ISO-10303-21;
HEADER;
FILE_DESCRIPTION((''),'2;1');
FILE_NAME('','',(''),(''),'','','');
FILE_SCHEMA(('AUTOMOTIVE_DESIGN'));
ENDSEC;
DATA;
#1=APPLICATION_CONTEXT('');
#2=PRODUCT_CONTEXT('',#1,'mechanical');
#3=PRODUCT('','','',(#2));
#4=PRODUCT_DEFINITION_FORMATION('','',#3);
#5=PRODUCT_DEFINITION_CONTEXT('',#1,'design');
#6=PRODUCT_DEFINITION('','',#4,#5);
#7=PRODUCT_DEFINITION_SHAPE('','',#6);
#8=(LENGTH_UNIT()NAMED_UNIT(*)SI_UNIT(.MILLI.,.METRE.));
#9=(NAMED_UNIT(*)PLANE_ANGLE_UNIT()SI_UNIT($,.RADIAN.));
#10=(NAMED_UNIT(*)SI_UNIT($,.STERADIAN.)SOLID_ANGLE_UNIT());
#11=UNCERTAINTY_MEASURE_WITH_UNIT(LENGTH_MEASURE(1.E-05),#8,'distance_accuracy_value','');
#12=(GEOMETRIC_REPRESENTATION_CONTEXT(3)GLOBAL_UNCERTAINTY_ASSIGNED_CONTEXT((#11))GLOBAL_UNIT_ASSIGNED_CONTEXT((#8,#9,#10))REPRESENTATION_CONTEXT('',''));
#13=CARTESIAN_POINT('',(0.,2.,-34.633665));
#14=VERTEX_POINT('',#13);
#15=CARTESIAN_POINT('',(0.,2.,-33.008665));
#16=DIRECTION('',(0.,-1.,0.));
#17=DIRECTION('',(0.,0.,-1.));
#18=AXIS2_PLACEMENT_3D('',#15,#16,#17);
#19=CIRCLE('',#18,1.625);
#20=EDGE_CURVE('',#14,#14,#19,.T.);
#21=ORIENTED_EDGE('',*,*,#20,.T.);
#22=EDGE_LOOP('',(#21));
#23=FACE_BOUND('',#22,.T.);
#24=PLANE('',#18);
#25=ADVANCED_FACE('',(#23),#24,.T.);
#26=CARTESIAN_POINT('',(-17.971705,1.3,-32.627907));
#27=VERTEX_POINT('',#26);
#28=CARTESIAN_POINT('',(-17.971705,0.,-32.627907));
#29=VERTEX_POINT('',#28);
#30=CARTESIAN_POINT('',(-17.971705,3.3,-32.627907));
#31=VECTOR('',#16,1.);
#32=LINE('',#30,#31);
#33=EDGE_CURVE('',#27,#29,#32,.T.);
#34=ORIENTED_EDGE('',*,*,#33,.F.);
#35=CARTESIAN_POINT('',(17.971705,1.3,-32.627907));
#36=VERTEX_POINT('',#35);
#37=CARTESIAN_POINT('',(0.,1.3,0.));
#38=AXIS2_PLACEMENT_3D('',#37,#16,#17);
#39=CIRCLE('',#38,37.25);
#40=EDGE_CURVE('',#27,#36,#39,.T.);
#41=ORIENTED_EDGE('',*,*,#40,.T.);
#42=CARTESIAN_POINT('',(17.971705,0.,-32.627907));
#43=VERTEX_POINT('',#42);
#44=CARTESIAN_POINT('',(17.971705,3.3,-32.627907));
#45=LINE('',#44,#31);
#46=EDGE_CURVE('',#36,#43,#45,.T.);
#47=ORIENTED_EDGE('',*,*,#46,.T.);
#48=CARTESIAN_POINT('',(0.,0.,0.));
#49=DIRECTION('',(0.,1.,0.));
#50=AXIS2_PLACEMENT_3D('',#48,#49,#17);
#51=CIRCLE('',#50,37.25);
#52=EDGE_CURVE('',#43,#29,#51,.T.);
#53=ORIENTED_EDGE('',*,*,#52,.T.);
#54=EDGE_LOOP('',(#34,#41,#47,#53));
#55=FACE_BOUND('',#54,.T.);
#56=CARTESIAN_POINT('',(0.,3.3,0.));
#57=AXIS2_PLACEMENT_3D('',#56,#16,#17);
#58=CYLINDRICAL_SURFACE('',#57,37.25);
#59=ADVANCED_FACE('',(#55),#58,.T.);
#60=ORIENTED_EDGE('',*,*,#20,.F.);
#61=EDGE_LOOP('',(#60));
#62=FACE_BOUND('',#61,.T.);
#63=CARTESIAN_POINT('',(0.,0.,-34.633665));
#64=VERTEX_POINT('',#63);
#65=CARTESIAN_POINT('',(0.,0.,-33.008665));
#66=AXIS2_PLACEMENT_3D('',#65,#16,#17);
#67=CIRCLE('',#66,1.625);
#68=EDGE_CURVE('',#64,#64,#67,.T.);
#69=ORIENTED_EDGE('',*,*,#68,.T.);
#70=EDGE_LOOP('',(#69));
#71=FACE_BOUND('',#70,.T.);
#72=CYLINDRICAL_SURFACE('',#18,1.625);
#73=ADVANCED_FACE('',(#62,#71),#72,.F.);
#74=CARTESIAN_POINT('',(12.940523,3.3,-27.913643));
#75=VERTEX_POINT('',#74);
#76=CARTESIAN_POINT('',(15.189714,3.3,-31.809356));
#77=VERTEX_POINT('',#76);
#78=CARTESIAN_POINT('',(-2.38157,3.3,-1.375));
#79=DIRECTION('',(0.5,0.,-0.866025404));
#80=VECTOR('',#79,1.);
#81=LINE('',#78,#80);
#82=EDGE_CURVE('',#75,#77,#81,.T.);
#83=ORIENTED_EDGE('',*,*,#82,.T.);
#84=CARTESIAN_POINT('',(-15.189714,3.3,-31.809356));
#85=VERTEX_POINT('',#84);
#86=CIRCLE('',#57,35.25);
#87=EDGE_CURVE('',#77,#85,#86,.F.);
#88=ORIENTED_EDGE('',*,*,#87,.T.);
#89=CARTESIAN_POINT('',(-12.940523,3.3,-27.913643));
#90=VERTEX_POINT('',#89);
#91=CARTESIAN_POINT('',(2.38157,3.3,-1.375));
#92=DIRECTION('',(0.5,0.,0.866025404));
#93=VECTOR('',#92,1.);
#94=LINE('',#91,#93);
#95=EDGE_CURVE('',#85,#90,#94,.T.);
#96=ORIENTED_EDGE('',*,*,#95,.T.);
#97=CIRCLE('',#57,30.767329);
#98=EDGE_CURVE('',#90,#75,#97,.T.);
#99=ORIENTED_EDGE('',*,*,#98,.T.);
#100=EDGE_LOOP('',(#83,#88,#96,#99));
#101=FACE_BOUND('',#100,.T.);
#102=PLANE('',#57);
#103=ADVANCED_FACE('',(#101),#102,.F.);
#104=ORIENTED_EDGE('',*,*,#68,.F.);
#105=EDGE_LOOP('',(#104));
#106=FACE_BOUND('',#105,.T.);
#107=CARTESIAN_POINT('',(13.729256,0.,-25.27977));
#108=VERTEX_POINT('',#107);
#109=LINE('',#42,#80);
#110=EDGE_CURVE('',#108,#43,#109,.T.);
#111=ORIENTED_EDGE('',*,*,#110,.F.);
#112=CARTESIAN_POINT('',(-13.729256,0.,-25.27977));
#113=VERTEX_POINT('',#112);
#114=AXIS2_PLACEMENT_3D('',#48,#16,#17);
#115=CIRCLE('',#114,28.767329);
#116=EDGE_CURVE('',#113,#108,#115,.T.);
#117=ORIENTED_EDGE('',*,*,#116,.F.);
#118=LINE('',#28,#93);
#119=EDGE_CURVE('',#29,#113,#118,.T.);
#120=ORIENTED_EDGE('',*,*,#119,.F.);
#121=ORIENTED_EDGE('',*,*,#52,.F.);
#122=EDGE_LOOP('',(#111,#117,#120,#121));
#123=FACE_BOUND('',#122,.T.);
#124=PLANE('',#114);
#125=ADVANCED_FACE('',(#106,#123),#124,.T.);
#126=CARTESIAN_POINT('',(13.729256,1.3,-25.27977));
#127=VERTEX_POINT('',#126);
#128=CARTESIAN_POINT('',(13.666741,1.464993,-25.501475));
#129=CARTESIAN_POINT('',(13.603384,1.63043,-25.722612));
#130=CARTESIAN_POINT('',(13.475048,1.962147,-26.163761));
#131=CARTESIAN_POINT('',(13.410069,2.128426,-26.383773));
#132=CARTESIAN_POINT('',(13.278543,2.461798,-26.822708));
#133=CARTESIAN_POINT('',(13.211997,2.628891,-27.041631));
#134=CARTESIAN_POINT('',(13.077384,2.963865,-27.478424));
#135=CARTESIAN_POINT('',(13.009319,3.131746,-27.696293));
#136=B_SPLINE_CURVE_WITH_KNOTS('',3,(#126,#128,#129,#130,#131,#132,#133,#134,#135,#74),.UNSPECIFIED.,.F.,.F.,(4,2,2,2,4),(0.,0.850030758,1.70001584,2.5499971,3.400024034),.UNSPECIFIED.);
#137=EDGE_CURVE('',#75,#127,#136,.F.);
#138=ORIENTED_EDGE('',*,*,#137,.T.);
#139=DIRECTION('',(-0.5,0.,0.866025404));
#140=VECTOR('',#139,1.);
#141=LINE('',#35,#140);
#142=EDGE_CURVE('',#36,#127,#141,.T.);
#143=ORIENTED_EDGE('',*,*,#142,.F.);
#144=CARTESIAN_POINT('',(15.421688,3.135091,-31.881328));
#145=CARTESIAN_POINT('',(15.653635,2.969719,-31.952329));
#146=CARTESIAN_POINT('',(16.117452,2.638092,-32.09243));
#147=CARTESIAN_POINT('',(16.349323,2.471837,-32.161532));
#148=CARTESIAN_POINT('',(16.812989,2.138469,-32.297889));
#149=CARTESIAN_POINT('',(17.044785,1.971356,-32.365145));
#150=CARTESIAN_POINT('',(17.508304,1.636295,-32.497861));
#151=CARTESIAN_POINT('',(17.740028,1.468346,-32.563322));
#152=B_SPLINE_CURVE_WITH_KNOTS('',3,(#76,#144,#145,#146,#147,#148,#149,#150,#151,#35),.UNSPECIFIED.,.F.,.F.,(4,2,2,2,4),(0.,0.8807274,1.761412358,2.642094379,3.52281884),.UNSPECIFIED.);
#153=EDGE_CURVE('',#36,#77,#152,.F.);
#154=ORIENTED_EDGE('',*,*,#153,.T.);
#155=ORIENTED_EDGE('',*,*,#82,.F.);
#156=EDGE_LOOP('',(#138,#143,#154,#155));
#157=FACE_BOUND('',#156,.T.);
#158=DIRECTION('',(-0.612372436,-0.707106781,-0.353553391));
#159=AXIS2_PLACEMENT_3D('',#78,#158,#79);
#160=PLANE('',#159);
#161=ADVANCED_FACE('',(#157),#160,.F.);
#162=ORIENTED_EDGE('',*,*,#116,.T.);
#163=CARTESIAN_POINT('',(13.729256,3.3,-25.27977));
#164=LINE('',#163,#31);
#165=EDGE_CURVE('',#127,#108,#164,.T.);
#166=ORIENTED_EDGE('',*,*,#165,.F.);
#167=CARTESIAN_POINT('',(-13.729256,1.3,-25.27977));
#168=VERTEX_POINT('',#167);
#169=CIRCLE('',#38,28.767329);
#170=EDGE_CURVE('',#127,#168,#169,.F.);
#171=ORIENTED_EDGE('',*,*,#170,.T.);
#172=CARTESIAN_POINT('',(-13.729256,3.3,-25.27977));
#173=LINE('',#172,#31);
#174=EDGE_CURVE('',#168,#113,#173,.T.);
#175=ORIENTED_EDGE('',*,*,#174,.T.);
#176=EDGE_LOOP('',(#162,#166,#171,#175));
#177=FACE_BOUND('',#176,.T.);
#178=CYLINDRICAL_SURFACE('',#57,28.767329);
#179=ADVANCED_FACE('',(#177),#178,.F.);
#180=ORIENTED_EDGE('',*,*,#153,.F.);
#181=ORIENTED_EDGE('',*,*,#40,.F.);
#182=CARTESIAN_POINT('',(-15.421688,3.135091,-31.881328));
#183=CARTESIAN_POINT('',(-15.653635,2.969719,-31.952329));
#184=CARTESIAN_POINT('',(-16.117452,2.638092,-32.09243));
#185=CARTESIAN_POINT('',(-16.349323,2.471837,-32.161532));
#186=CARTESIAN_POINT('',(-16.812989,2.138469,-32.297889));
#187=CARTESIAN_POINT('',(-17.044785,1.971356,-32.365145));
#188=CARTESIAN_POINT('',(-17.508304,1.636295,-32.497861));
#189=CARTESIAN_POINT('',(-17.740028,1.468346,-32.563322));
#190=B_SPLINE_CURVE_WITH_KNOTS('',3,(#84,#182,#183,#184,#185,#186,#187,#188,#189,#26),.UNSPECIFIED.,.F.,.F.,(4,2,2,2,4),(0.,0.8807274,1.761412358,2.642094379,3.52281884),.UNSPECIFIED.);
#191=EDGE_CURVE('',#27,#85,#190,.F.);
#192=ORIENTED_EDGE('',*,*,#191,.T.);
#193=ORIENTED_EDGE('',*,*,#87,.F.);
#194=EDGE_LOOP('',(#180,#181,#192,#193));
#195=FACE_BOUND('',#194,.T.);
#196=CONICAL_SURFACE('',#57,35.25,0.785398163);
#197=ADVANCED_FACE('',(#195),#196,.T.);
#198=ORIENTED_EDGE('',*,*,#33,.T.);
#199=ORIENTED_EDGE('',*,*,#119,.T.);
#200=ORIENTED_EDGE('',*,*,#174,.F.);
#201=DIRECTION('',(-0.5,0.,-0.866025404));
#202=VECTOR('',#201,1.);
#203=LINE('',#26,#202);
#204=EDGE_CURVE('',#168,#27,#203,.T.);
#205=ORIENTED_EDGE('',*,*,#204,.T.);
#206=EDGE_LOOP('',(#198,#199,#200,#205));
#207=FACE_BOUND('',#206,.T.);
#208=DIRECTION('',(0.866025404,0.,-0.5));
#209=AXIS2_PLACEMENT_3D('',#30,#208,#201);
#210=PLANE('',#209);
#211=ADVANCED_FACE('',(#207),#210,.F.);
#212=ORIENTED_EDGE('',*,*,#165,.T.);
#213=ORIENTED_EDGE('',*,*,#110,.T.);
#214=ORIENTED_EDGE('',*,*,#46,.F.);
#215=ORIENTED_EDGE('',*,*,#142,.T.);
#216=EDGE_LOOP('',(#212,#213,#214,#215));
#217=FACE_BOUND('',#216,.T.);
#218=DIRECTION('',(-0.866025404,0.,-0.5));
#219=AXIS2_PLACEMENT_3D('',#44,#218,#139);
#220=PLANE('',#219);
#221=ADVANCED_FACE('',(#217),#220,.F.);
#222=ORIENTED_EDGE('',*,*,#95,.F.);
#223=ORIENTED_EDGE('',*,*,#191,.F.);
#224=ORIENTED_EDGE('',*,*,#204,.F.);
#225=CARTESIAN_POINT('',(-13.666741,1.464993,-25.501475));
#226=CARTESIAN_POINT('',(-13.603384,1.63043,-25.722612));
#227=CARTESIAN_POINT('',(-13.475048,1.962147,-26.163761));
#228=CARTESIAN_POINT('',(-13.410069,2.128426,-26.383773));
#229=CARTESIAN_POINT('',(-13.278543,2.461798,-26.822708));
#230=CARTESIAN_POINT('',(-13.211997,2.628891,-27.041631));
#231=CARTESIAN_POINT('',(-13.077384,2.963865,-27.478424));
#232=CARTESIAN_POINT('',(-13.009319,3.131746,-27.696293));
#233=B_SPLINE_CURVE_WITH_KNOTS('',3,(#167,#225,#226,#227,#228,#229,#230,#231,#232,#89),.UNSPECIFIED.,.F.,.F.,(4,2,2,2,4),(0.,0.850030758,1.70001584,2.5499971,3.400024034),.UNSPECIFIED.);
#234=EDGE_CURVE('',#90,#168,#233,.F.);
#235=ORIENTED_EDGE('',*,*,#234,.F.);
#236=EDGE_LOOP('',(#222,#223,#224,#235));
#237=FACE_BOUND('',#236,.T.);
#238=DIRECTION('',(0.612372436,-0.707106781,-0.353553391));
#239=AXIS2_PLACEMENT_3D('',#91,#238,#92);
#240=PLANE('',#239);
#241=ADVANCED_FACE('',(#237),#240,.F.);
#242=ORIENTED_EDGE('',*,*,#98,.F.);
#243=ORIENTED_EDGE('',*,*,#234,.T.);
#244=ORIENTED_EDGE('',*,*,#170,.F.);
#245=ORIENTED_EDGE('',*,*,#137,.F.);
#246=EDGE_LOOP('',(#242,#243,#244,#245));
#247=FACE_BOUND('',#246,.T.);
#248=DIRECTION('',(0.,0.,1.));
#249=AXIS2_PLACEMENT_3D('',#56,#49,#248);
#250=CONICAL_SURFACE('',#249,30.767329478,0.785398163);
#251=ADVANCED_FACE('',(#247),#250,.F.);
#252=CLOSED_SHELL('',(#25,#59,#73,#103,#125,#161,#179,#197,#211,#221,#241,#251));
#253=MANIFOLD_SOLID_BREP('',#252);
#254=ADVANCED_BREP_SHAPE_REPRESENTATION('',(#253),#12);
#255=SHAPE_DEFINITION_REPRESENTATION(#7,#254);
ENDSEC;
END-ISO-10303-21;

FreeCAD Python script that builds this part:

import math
import FreeCAD as App
import Part
import Sketcher
Q = App.Units.Quantity


def edges_at(feature, points):
    """Names of the edges that pass closest to the given points."""
    edges = feature.Shape.Edges
    near = lambda p: min(range(len(edges)), key=lambda i: edges[i].distToShape(Part.Vertex(*p))[0])
    return sorted({f"Edge{near(p) + 1}" for p in points})

doc = App.newDocument("Part")
body = doc.addObject("PartDesign::Body", "Body")

# Sketch on XZ plane
sketch1 = body.newObject("Sketcher::SketchObject", "Sketch")
sketch1.AttachmentSupport = (doc.getObject("XZ_Plane"), [""])
sketch1.MapMode = "FlatFace"
sketch1.addGeometry([
    Part.LineSegment(App.Vector(-17.971705, -32.627907, 0), App.Vector(-13.729256, -25.27977, 0)),
    Part.ArcOfCircle(Part.Circle(App.Vector(0, 0, 0), App.Vector(0, 0, 1), 28.767329), math.radians(-118.506059), math.radians(-61.493941)),
    Part.LineSegment(App.Vector(13.729256, -25.27977, 0), App.Vector(17.971705, -32.627907, 0)),
    Part.ArcOfCircle(Part.Circle(App.Vector(0, 0, 0), App.Vector(0, 0, 1), 37.25), math.radians(-118.846316), math.radians(-61.153684)),
], False)
sketch1.addConstraint([
    Sketcher.Constraint("Coincident", 0, 2, 1, 1),
    Sketcher.Constraint("Coincident", 1, 2, 2, 1),
    Sketcher.Constraint("Coincident", 2, 2, 3, 2),
    Sketcher.Constraint("Coincident", 3, 1, 0, 1),
    Sketcher.Constraint("Coincident", 1, 3, -1, 1),
    Sketcher.Constraint("Coincident", 3, 3, -1, 1),
    Sketcher.Constraint("Horizontal", 0, 2, 1, 2),
    Sketcher.Constraint("Horizontal", 2, 2, 3, 1),
    Sketcher.Constraint("Angle", 0, Q("60 deg")),
    Sketcher.Constraint("Radius", 3, Q("37.25 mm")),
    Sketcher.Constraint("Radius", 1, Q("28.767329 mm")),
    Sketcher.Constraint("DistanceY", 0, 2, -1, 1, Q("25.27977 mm")),
])
pad1 = body.newObject("PartDesign::Pad", "Pad")
pad1.Profile = sketch1
pad1.Length = 3.3
pad1.Reversed = True
doc.recompute()

chamfer = body.newObject("PartDesign::Chamfer", "Chamfer")
chamfer.Base = (pad1, edges_at(pad1, [
    (0, 3.3, -28.767),
    (15.85, 3.3, -28.954),
    (0, 3.3, -37.25),
    (-15.85, 3.3, -28.954),
]))
chamfer.Size = 2

# Sketch on XZ plane
sketch2 = body.newObject("Sketcher::SketchObject", "Sketch001")
sketch2.AttachmentSupport = (doc.getObject("XZ_Plane"), [""])
sketch2.MapMode = "FlatFace"
sketch2.addGeometry(Part.Circle(App.Vector(0, -33.008665, 0), App.Vector(0, 0, 1), 1.625), False)
sketch2.addConstraint([
    Sketcher.Constraint("PointOnObject", 0, 3, -2),
    Sketcher.Constraint("Diameter", 0, Q("3.25 mm")),
    Sketcher.Constraint("DistanceY", 0, 3, -1, 1, Q("33.008665 mm")),
])
pocket1 = body.newObject("PartDesign::Pocket", "Pocket")
pocket1.Profile = sketch2
pocket1.Length = 2

doc.recompute()
